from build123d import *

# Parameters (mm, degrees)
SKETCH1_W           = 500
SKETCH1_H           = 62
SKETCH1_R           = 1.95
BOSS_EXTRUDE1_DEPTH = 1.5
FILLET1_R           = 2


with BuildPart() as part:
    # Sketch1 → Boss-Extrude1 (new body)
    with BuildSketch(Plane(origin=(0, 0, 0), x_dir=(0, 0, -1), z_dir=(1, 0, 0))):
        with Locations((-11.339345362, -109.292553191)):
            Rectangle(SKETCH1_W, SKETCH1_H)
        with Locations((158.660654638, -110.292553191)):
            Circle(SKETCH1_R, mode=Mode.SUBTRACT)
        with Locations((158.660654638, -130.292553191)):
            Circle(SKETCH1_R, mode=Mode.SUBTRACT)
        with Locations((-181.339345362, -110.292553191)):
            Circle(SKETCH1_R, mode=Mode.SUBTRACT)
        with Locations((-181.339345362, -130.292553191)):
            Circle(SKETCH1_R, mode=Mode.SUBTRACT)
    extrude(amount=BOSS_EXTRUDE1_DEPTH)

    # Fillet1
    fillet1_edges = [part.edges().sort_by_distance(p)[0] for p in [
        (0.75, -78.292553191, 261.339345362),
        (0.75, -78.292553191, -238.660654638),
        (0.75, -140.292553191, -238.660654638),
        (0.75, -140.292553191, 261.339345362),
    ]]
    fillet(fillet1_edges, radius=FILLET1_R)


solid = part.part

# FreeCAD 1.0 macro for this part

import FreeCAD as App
import Part
import Sketcher
Q = App.Units.Quantity


def edges_at(feature, points):
    """Names of the edges that pass closest to the given points."""
    edges = feature.Shape.Edges
    near = lambda p: min(range(len(edges)), key=lambda i: edges[i].distToShape(Part.Vertex(*p))[0])
    return sorted({f"Edge{near(p) + 1}" for p in points})

doc = App.newDocument("Part")
body = doc.addObject("PartDesign::Body", "Body")

# Sketch on YZ plane
sketch1 = doc.addObject("Sketcher::SketchObject", "Sketch")
body.addObject(sketch1)
sketch1.AttachmentSupport = (doc.YZ_Plane, [""])
sketch1.MapMode = "FlatFace"
sketch1.addGeometry(Part.LineSegment(App.Vector(-78.292553, 261.339345, 0), App.Vector(-140.292553, 261.339345, 0)), False)
sketch1.addGeometry(Part.LineSegment(App.Vector(-140.292553, 261.339345, 0), App.Vector(-140.292553, -238.660655, 0)), False)
sketch1.addGeometry(Part.LineSegment(App.Vector(-140.292553, -238.660655, 0), App.Vector(-78.292553, -238.660655, 0)), False)
sketch1.addGeometry(Part.LineSegment(App.Vector(-78.292553, -238.660655, 0), App.Vector(-78.292553, 261.339345, 0)), False)
sketch1.addGeometry(Part.Circle(App.Vector(-130.292553, 181.339345, 0), App.Vector(0, 0, 1), 1.95), False)
sketch1.addGeometry(Part.Circle(App.Vector(-130.292553, -158.660655, 0), App.Vector(0, 0, 1), 1.95), False)
sketch1.addGeometry(Part.Circle(App.Vector(-110.292553, 181.339345, 0), App.Vector(0, 0, 1), 1.95), False)
sketch1.addGeometry(Part.Circle(App.Vector(-110.292553, -158.660655, 0), App.Vector(0, 0, 1), 1.95), False)
sketch1.addConstraint(Sketcher.Constraint("Coincident", 0, 2, 1, 1))
sketch1.addConstraint(Sketcher.Constraint("Coincident", 1, 2, 2, 1))
sketch1.addConstraint(Sketcher.Constraint("Coincident", 2, 2, 3, 1))
sketch1.addConstraint(Sketcher.Constraint("Coincident", 3, 2, 0, 1))
sketch1.addConstraint(Sketcher.Constraint("Horizontal", 0))
sketch1.addConstraint(Sketcher.Constraint("Vertical", 1))
sketch1.addConstraint(Sketcher.Constraint("Horizontal", 2))
sketch1.addConstraint(Sketcher.Constraint("Vertical", 3))
sketch1.addConstraint(Sketcher.Constraint("Equal", 4, 5))
sketch1.addConstraint(Sketcher.Constraint("Equal", 5, 6))
sketch1.addConstraint(Sketcher.Constraint("Equal", 6, 7))
sketch1.addConstraint(Sketcher.Constraint("Horizontal", 4, 3, 6, 3))
sketch1.addConstraint(Sketcher.Constraint("Horizontal", 5, 3, 7, 3))
sketch1.addConstraint(Sketcher.Constraint("Vertical", 4, 3, 5, 3))
sketch1.addConstraint(Sketcher.Constraint("Vertical", 6, 3, 7, 3))
sketch1.addConstraint(Sketcher.Constraint("Diameter", 4, Q("3.9 mm")))
sketch1.addConstraint(Sketcher.Constraint("DistanceX", 0, 2, 0, 1, Q("62 mm")))
sketch1.addConstraint(Sketcher.Constraint("DistanceY", 1, 2, 1, 1, Q("500 mm")))
sketch1.addConstraint(Sketcher.Constraint("DistanceY", 5, 3, 4, 3, Q("340 mm")))
sketch1.addConstraint(Sketcher.Constraint("DistanceX", 4, 3, 6, 3, Q("20 mm")))
sketch1.addConstraint(Sketcher.Constraint("DistanceX", 0, 2, 4, 3, Q("10 mm")))
sketch1.addConstraint(Sketcher.Constraint("DistanceY", 4, 3, 0, 2, Q("80 mm")))
sketch1.addConstraint(Sketcher.Constraint("DistanceX", 4, 3, -1, 1, Q("130.292553 mm")))
sketch1.addConstraint(Sketcher.Constraint("DistanceY", -1, 1, 4, 3, Q("181.339345 mm")))
pad1 = doc.addObject("PartDesign::Pad", "Pad")
body.addObject(pad1)
pad1.Profile = sketch1
pad1.Length = 1.5
doc.recompute()

fillet = doc.addObject("PartDesign::Fillet", "Fillet")
body.addObject(fillet)
fillet.Base = (pad1, edges_at(pad1, [
    (0.75, -78.293, 261.339),
    (0.75, -78.293, -238.661),
    (0.75, -140.293, -238.661),
    (0.75, -140.293, 261.339),
]))
fillet.Radius = 2

doc.recompute()
